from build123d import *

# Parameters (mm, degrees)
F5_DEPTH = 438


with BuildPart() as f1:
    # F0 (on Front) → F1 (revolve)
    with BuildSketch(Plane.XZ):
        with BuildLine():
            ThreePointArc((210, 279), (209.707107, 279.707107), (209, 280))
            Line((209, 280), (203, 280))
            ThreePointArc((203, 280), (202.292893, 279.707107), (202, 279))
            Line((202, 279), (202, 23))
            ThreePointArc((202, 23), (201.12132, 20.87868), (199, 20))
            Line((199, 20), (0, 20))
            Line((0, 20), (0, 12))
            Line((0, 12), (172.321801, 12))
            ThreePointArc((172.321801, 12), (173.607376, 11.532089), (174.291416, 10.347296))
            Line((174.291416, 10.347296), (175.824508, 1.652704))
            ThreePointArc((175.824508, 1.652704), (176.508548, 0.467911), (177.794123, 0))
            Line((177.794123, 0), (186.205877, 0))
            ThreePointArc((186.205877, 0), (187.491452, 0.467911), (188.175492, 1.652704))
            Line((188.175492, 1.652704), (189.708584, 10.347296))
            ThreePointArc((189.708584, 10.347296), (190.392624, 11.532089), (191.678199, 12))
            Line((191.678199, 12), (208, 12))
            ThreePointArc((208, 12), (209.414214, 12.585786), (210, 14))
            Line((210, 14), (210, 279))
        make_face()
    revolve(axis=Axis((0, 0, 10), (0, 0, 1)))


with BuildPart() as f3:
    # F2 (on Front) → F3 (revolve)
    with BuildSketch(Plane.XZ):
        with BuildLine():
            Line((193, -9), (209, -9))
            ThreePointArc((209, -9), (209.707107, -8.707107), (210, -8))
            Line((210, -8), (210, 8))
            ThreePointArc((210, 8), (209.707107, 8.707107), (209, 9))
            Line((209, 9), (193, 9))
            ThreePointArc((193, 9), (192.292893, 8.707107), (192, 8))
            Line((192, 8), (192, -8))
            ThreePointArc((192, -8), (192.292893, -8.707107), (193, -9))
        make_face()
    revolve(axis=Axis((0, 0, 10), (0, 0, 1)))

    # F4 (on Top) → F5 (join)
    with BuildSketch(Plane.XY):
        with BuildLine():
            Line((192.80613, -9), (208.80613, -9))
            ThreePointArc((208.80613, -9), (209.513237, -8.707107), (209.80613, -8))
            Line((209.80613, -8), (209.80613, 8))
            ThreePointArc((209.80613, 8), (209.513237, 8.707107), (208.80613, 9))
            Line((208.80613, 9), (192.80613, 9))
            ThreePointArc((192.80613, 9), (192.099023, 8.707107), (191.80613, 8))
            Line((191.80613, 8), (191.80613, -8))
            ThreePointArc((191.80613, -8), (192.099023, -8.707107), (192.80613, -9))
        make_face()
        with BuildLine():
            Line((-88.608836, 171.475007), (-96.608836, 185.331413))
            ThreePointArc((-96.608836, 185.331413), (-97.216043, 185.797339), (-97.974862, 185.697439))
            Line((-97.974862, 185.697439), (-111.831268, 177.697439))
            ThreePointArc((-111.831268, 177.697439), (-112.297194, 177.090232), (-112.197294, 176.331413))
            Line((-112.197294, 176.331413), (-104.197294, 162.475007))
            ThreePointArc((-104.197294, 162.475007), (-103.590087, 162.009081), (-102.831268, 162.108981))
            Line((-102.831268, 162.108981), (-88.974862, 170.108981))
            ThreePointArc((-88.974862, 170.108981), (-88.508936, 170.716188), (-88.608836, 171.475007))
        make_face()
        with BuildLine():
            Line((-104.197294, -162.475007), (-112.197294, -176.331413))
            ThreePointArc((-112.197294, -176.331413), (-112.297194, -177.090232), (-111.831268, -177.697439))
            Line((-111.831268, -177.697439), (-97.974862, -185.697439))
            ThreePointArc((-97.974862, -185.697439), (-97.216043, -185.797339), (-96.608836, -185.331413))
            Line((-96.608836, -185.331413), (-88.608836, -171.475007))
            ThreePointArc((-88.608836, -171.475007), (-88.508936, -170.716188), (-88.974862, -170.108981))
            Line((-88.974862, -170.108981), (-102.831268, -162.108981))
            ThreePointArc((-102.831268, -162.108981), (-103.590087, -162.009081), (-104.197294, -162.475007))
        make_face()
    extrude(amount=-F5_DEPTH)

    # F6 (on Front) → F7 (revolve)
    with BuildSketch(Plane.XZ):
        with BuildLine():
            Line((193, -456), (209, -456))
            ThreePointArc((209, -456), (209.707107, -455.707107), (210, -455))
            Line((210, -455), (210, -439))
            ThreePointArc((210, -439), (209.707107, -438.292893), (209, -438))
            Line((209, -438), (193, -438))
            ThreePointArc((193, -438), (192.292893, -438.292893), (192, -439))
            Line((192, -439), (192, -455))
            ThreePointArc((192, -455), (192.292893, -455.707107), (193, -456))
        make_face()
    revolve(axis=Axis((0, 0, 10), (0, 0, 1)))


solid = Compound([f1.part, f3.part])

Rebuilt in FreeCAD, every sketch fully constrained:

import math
import FreeCAD as App
import Part
import Sketcher
Q = App.Units.Quantity

doc = App.newDocument("Part")
body = doc.addObject("PartDesign::Body", "Body")

sketch1 = body.newObject("Sketcher::SketchObject", "Sketch")
sketch1.AttachmentSupport = (doc.getObject("XZ_Plane"), [""])
sketch1.MapMode = "FlatFace"
sketch1.addGeometry([
    Part.ArcOfCircle(Part.Circle(App.Vector(209.000001, 279.000001, 0), App.Vector(0, 0, 1), 0.999999), math.radians(-0.000043), math.radians(90.000043)),
    Part.LineSegment(App.Vector(209, 280, 0), App.Vector(203, 280, 0)),
    Part.ArcOfCircle(Part.Circle(App.Vector(202.999999, 279.000001, 0), App.Vector(0, 0, 1), 0.999999), math.radians(89.999957), math.radians(180.000043)),
    Part.LineSegment(App.Vector(202, 279, 0), App.Vector(202, 23, 0)),
    Part.ArcOfCircle(Part.Circle(App.Vector(198.999999, 23.000001, 0), App.Vector(0, 0, 1), 3.000001), math.radians(-89.999978), math.radians(-0.000022)),
    Part.LineSegment(App.Vector(199, 20, 0), App.Vector(0, 20, 0)),
    Part.LineSegment(App.Vector(0, 20, 0), App.Vector(0, 12, 0)),
    Part.LineSegment(App.Vector(0, 12, 0), App.Vector(172.321801, 12, 0)),
    Part.ArcOfCircle(Part.Circle(App.Vector(172.321801, 10.000001, 0), App.Vector(0, 0, 1), 1.999999), math.radians(9.999965), math.radians(90.000008)),
    Part.LineSegment(App.Vector(174.291416, 10.347296, 0), App.Vector(175.824508, 1.652704, 0)),
    Part.ArcOfCircle(Part.Circle(App.Vector(177.794123, 1.999999, 0), App.Vector(0, 0, 1), 1.999999), math.radians(-170.000035), math.radians(-89.999992)),
    Part.LineSegment(App.Vector(177.794123, 0, 0), App.Vector(186.205877, 0, 0)),
    Part.ArcOfCircle(Part.Circle(App.Vector(186.205877, 1.999999, 0), App.Vector(0, 0, 1), 1.999999), math.radians(-90.000008), math.radians(-9.999965)),
    Part.LineSegment(App.Vector(188.175492, 1.652704, 0), App.Vector(189.708584, 10.347296, 0)),
    Part.ArcOfCircle(Part.Circle(App.Vector(191.678199, 10.000001, 0), App.Vector(0, 0, 1), 1.999999), math.radians(89.999992), math.radians(170.000035)),
    Part.LineSegment(App.Vector(191.678199, 12, 0), App.Vector(208, 12, 0)),
    Part.ArcOfCircle(Part.Circle(App.Vector(208.000001, 13.999999, 0), App.Vector(0, 0, 1), 1.999999), math.radians(-90.000043), math.radians(0.000043)),
    Part.LineSegment(App.Vector(210, 14, 0), App.Vector(210, 279, 0)),
], False)
sketch1.addConstraint([
    Sketcher.Constraint("Tangent", 0, 2, 1, 1),
    Sketcher.Constraint("Tangent", 1, 2, 2, 1),
    Sketcher.Constraint("Tangent", 2, 2, 3, 1),
    Sketcher.Constraint("Tangent", 3, 2, 4, 2),
    Sketcher.Constraint("Tangent", 4, 1, 5, 1),
    Sketcher.Constraint("Coincident", 5, 2, 6, 1),
    Sketcher.Constraint("Coincident", 6, 2, 7, 1),
    Sketcher.Constraint("Tangent", 7, 2, 8, 2),
    Sketcher.Constraint("Tangent", 8, 1, 9, 1),
    Sketcher.Constraint("Tangent", 9, 2, 10, 1),
    Sketcher.Constraint("Tangent", 10, 2, 11, 1),
    Sketcher.Constraint("Tangent", 11, 2, 12, 1),
    Sketcher.Constraint("Tangent", 12, 2, 13, 1),
    Sketcher.Constraint("Tangent", 13, 2, 14, 2),
    Sketcher.Constraint("Tangent", 14, 1, 15, 1),
    Sketcher.Constraint("Tangent", 15, 2, 16, 1),
    Sketcher.Constraint("Tangent", 16, 2, 17, 1),
    Sketcher.Constraint("Tangent", 17, 2, 0, 1),
    Sketcher.Constraint("Horizontal", 1),
    Sketcher.Constraint("Vertical", 3),
    Sketcher.Constraint("Horizontal", 5),
    Sketcher.Constraint("Vertical", 6),
    Sketcher.Constraint("Horizontal", 7),
    Sketcher.Constraint("Horizontal", 11),
    Sketcher.Constraint("Horizontal", 15),
    Sketcher.Constraint("Vertical", 17),
    Sketcher.Constraint("Equal", 0, 2),
    Sketcher.Constraint("Equal", 8, 10),
    Sketcher.Constraint("Equal", 10, 12),
    Sketcher.Constraint("Equal", 12, 14),
    Sketcher.Constraint("Equal", 14, 16),
    Sketcher.Constraint("PointOnObject", 5, 2, -2),
    Sketcher.Constraint("PointOnObject", 10, 2, -1),
    Sketcher.Constraint("Horizontal", 8, 3, 14, 3),
    Sketcher.Constraint("Horizontal", 9, 2, 12, 2),
    Sketcher.Constraint("Radius", 0, 0.999999),
    Sketcher.Constraint("Radius", 4, 3.000001),
    Sketcher.Constraint("Radius", 8, 1.999999),
    Sketcher.Constraint("DistanceX", 1, 2, 1, 1, 6.0),
    Sketcher.Constraint("DistanceX", 5, 2, 5, 1, 199.0),
    Sketcher.Constraint("DistanceY", 3, 2, 3, 1, 256.0),
    Sketcher.Constraint("DistanceY", 6, 2, 6, 1, 8.0),
    Sketcher.Constraint("Angle", 9, Q("-79.999995 deg")),
    Sketcher.Constraint("DistanceY", -1, 1, 0, 3, 279.000001),
    Sketcher.Constraint("DistanceX", 7, 1, 7, 2, 172.321801),
    Sketcher.Constraint("DistanceX", 15, 1, 15, 2, 16.321801),
])
revolution = body.newObject("PartDesign::Revolution", "Revolution")
revolution.Profile = sketch1
revolution.ReferenceAxis = (sketch1, ["V_Axis"])
revolution.Angle = 360
body2 = doc.addObject("PartDesign::Body", "Body001")

sketch2 = body2.newObject("Sketcher::SketchObject", "Sketch001")
sketch2.AttachmentSupport = (doc.getObject("XZ_Plane001"), [""])
sketch2.MapMode = "FlatFace"
sketch2.addGeometry([
    Part.LineSegment(App.Vector(193, -9, 0), App.Vector(209, -9, 0)),
    Part.ArcOfCircle(Part.Circle(App.Vector(209.000001, -8.000001, 0), App.Vector(0, 0, 1), 0.999999), math.radians(-90.000043), math.radians(0.000043)),
    Part.LineSegment(App.Vector(210, -8, 0), App.Vector(210, 8, 0)),
    Part.ArcOfCircle(Part.Circle(App.Vector(209.000001, 8.000001, 0), App.Vector(0, 0, 1), 0.999999), math.radians(-0.000043), math.radians(90.000043)),
    Part.LineSegment(App.Vector(209, 9, 0), App.Vector(193, 9, 0)),
    Part.ArcOfCircle(Part.Circle(App.Vector(192.999999, 8.000001, 0), App.Vector(0, 0, 1), 0.999999), math.radians(89.999957), math.radians(180.000043)),
    Part.LineSegment(App.Vector(192, 8, 0), App.Vector(192, -8, 0)),
    Part.ArcOfCircle(Part.Circle(App.Vector(192.999999, -8.000001, 0), App.Vector(0, 0, 1), 0.999999), math.radians(179.999957), math.radians(270.000043)),
], False)
sketch2.addConstraint([
    Sketcher.Constraint("Tangent", 0, 2, 1, 1),
    Sketcher.Constraint("Tangent", 1, 2, 2, 1),
    Sketcher.Constraint("Tangent", 2, 2, 3, 1),
    Sketcher.Constraint("Tangent", 3, 2, 4, 1),
    Sketcher.Constraint("Tangent", 4, 2, 5, 1),
    Sketcher.Constraint("Tangent", 5, 2, 6, 1),
    Sketcher.Constraint("Tangent", 6, 2, 7, 1),
    Sketcher.Constraint("Tangent", 7, 2, 0, 1),
    Sketcher.Constraint("Horizontal", 0),
    Sketcher.Constraint("Vertical", 2),
    Sketcher.Constraint("Horizontal", 4),
    Sketcher.Constraint("Vertical", 6),
    Sketcher.Constraint("Equal", 1, 3),
    Sketcher.Constraint("Equal", 3, 5),
    Sketcher.Constraint("Equal", 5, 7),
    Sketcher.Constraint("Equal", 4, 2),
    Sketcher.Constraint("Radius", 1, 0.999999),
    Sketcher.Constraint("DistanceX", 0, 1, 0, 2, 16.0),
    Sketcher.Constraint("DistanceX", -1, 1, 1, 3, 209.000001),
    Sketcher.Constraint("DistanceY", 1, 3, -1, 1, 8.000001),
])
revolution2 = body2.newObject("PartDesign::Revolution", "Revolution001")
revolution2.Profile = sketch2
revolution2.ReferenceAxis = (sketch2, ["V_Axis"])
revolution2.Angle = 360

sketch3 = body2.newObject("Sketcher::SketchObject", "Sketch002")
sketch3.AttachmentSupport = (doc.getObject("XY_Plane001"), [""])
sketch3.MapMode = "FlatFace"
sketch3.addGeometry([
    Part.LineSegment(App.Vector(192.80613, -9, 0), App.Vector(208.80613, -9, 0)),
    Part.ArcOfCircle(Part.Circle(App.Vector(208.806131, -8.000001, 0), App.Vector(0, 0, 1), 0.999999), math.radians(-90.000043), math.radians(0.000043)),
    Part.LineSegment(App.Vector(209.80613, -8, 0), App.Vector(209.80613, 8, 0)),
    Part.ArcOfCircle(Part.Circle(App.Vector(208.806131, 8.000001, 0), App.Vector(0, 0, 1), 0.999999), math.radians(-0.000043), math.radians(90.000043)),
    Part.LineSegment(App.Vector(208.80613, 9, 0), App.Vector(192.80613, 9, 0)),
    Part.ArcOfCircle(Part.Circle(App.Vector(192.806129, 8.000001, 0), App.Vector(0, 0, 1), 0.999999), math.radians(89.999957), math.radians(180.000043)),
    Part.LineSegment(App.Vector(191.80613, 8, 0), App.Vector(191.80613, -8, 0)),
    Part.ArcOfCircle(Part.Circle(App.Vector(192.806129, -8.000001, 0), App.Vector(0, 0, 1), 0.999999), math.radians(179.999957), math.radians(270.000043)),
    Part.LineSegment(App.Vector(-88.608836, 171.475007, 0), App.Vector(-96.608836, 185.331413, 0)),
    Part.ArcOfCircle(Part.Circle(App.Vector(-97.474862, 184.831412, 0), App.Vector(0, 0, 1), 1.000001), math.radians(30.000033), math.radians(119.999933)),
    Part.LineSegment(App.Vector(-97.974862, 185.697439, 0), App.Vector(-111.831268, 177.697439, 0)),
    Part.ArcOfCircle(Part.Circle(App.Vector(-111.331267, 176.831413, 0), App.Vector(0, 0, 1), 1.000001), math.radians(120.000033), math.radians(209.999933)),
    Part.LineSegment(App.Vector(-112.197294, 176.331413, 0), App.Vector(-104.197294, 162.475007, 0)),
    Part.ArcOfCircle(Part.Circle(App.Vector(-103.331268, 162.975008, 0), App.Vector(0, 0, 1), 1.000001), math.radians(-149.999967), math.radians(-60.000067)),
    Part.LineSegment(App.Vector(-102.831268, 162.108981, 0), App.Vector(-88.974862, 170.108981, 0)),
    Part.ArcOfCircle(Part.Circle(App.Vector(-89.474863, 170.975007, 0), App.Vector(0, 0, 1), 1.000001), math.radians(-59.999967), math.radians(29.999933)),
    Part.LineSegment(App.Vector(-104.197294, -162.475007, 0), App.Vector(-112.197294, -176.331413, 0)),
    Part.ArcOfCircle(Part.Circle(App.Vector(-111.331267, -176.831413, 0), App.Vector(0, 0, 1), 1.000001), math.radians(150.000067), math.radians(239.999967)),
    Part.LineSegment(App.Vector(-111.831268, -177.697439, 0), App.Vector(-97.974862, -185.697439, 0)),
    Part.ArcOfCircle(Part.Circle(App.Vector(-97.474862, -184.831412, 0), App.Vector(0, 0, 1), 1.000001), math.radians(-119.999933), math.radians(-30.000033)),
    Part.LineSegment(App.Vector(-96.608836, -185.331413, 0), App.Vector(-88.608836, -171.475007, 0)),
    Part.ArcOfCircle(Part.Circle(App.Vector(-89.474863, -170.975007, 0), App.Vector(0, 0, 1), 1.000001), math.radians(-29.999933), math.radians(59.999967)),
    Part.LineSegment(App.Vector(-88.974862, -170.108981, 0), App.Vector(-102.831268, -162.108981, 0)),
    Part.ArcOfCircle(Part.Circle(App.Vector(-103.331268, -162.975008, 0), App.Vector(0, 0, 1), 1.000001), math.radians(60.000067), math.radians(149.999967)),
], False)
sketch3.addConstraint([
    Sketcher.Constraint("Tangent", 0, 2, 1, 1),
    Sketcher.Constraint("Tangent", 1, 2, 2, 1),
    Sketcher.Constraint("Tangent", 2, 2, 3, 1),
    Sketcher.Constraint("Tangent", 3, 2, 4, 1),
    Sketcher.Constraint("Tangent", 4, 2, 5, 1),
    Sketcher.Constraint("Tangent", 5, 2, 6, 1),
    Sketcher.Constraint("Tangent", 6, 2, 7, 1),
    Sketcher.Constraint("Tangent", 7, 2, 0, 1),
    Sketcher.Constraint("Tangent", 8, 2, 9, 1),
    Sketcher.Constraint("Tangent", 9, 2, 10, 1),
    Sketcher.Constraint("Tangent", 10, 2, 11, 1),
    Sketcher.Constraint("Tangent", 11, 2, 12, 1),
    Sketcher.Constraint("Tangent", 12, 2, 13, 1),
    Sketcher.Constraint("Tangent", 13, 2, 14, 1),
    Sketcher.Constraint("Tangent", 14, 2, 15, 1),
    Sketcher.Constraint("Tangent", 15, 2, 8, 1),
    Sketcher.Constraint("Tangent", 16, 2, 17, 1),
    Sketcher.Constraint("Tangent", 17, 2, 18, 1),
    Sketcher.Constraint("Tangent", 18, 2, 19, 1),
    Sketcher.Constraint("Tangent", 19, 2, 20, 1),
    Sketcher.Constraint("Tangent", 20, 2, 21, 1),
    Sketcher.Constraint("Tangent", 21, 2, 22, 1),
    Sketcher.Constraint("Tangent", 22, 2, 23, 1),
    Sketcher.Constraint("Tangent", 23, 2, 16, 1),
    Sketcher.Constraint("Horizontal", 0),
    Sketcher.Constraint("Vertical", 2),
    Sketcher.Constraint("Horizontal", 4),
    Sketcher.Constraint("Vertical", 6),
    Sketcher.Constraint("Equal", 1, 3),
    Sketcher.Constraint("Equal", 3, 5),
    Sketcher.Constraint("Equal", 5, 7),
    Sketcher.Constraint("Equal", 9, 11),
    Sketcher.Constraint("Equal", 11, 13),
    Sketcher.Constraint("Equal", 13, 15),
    Sketcher.Constraint("Equal", 15, 17),
    Sketcher.Constraint("Equal", 17, 19),
    Sketcher.Constraint("Equal", 19, 21),
    Sketcher.Constraint("Equal", 21, 23),
    Sketcher.Constraint("Symmetric", 11, 3, 17, 3, -1),
    Sketcher.Constraint("Symmetric", 9, 3, 19, 3, -1),
    Sketcher.Constraint("Symmetric", 15, 3, 21, 3, -1),
    Sketcher.Constraint("Symmetric", 13, 3, 23, 3, -1),
    Sketcher.Constraint("Perpendicular", 8, 10),
    Sketcher.Constraint("Perpendicular", 10, 12),
    Sketcher.Constraint("Perpendicular", 12, 14),
    Sketcher.Constraint("Equal", 4, 2),
    Sketcher.Constraint("Equal", 8, 10),
    Sketcher.Constraint("Radius", 1, 0.999999),
    Sketcher.Constraint("Radius", 9, 1.000001),
    Sketcher.Constraint("DistanceX", 0, 1, 0, 2, 16.0),
    Sketcher.Constraint("Angle", 8, Q("120.000001 deg")),
    Sketcher.Constraint("Distance", 8, 16.0),
    Sketcher.Constraint("DistanceY", 1, 3, -1, 1, 8.000001),
    Sketcher.Constraint("DistanceX", 13, 3, 3, 3, 312.137398),
    Sketcher.Constraint("DistanceX", -1, 1, 1, 3, 208.806131),
    Sketcher.Constraint("DistanceY", -1, 1, 9, 3, 184.831412),
])
pad1 = body2.newObject("PartDesign::Pad", "Pad")
pad1.Profile = sketch3
pad1.Length = 438
pad1.Reversed = True

sketch4 = body2.newObject("Sketcher::SketchObject", "Sketch003")
sketch4.AttachmentSupport = (doc.getObject("XZ_Plane001"), [""])
sketch4.MapMode = "FlatFace"
sketch4.addGeometry([
    Part.LineSegment(App.Vector(193, -456, 0), App.Vector(209, -456, 0)),
    Part.ArcOfCircle(Part.Circle(App.Vector(209.000001, -455.000001, 0), App.Vector(0, 0, 1), 0.999999), math.radians(-90.000043), math.radians(0.000043)),
    Part.LineSegment(App.Vector(210, -455, 0), App.Vector(210, -439, 0)),
    Part.ArcOfCircle(Part.Circle(App.Vector(209.000001, -438.999999, 0), App.Vector(0, 0, 1), 0.999999), math.radians(-0.000043), math.radians(90.000043)),
    Part.LineSegment(App.Vector(209, -438, 0), App.Vector(193, -438, 0)),
    Part.ArcOfCircle(Part.Circle(App.Vector(192.999999, -438.999999, 0), App.Vector(0, 0, 1), 0.999999), math.radians(89.999957), math.radians(180.000043)),
    Part.LineSegment(App.Vector(192, -439, 0), App.Vector(192, -455, 0)),
    Part.ArcOfCircle(Part.Circle(App.Vector(192.999999, -455.000001, 0), App.Vector(0, 0, 1), 0.999999), math.radians(179.999957), math.radians(270.000043)),
], False)
sketch4.addConstraint([
    Sketcher.Constraint("Tangent", 0, 2, 1, 1),
    Sketcher.Constraint("Tangent", 1, 2, 2, 1),
    Sketcher.Constraint("Tangent", 2, 2, 3, 1),
    Sketcher.Constraint("Tangent", 3, 2, 4, 1),
    Sketcher.Constraint("Tangent", 4, 2, 5, 1),
    Sketcher.Constraint("Tangent", 5, 2, 6, 1),
    Sketcher.Constraint("Tangent", 6, 2, 7, 1),
    Sketcher.Constraint("Tangent", 7, 2, 0, 1),
    Sketcher.Constraint("Horizontal", 0),
    Sketcher.Constraint("Vertical", 2),
    Sketcher.Constraint("Horizontal", 4),
    Sketcher.Constraint("Vertical", 6),
    Sketcher.Constraint("Equal", 1, 3),
    Sketcher.Constraint("Equal", 3, 5),
    Sketcher.Constraint("Equal", 5, 7),
    Sketcher.Constraint("Equal", 4, 2),
    Sketcher.Constraint("Radius", 1, 0.999999),
    Sketcher.Constraint("DistanceX", 0, 1, 0, 2, 16.0),
    Sketcher.Constraint("DistanceX", -1, 1, 1, 3, 209.000001),
    Sketcher.Constraint("DistanceY", 1, 3, -1, 1, 455.000001),
])
revolution3 = body2.newObject("PartDesign::Revolution", "Revolution002")
revolution3.Profile = sketch4
revolution3.ReferenceAxis = (sketch4, ["V_Axis"])
revolution3.Angle = 360

doc.recompute()
